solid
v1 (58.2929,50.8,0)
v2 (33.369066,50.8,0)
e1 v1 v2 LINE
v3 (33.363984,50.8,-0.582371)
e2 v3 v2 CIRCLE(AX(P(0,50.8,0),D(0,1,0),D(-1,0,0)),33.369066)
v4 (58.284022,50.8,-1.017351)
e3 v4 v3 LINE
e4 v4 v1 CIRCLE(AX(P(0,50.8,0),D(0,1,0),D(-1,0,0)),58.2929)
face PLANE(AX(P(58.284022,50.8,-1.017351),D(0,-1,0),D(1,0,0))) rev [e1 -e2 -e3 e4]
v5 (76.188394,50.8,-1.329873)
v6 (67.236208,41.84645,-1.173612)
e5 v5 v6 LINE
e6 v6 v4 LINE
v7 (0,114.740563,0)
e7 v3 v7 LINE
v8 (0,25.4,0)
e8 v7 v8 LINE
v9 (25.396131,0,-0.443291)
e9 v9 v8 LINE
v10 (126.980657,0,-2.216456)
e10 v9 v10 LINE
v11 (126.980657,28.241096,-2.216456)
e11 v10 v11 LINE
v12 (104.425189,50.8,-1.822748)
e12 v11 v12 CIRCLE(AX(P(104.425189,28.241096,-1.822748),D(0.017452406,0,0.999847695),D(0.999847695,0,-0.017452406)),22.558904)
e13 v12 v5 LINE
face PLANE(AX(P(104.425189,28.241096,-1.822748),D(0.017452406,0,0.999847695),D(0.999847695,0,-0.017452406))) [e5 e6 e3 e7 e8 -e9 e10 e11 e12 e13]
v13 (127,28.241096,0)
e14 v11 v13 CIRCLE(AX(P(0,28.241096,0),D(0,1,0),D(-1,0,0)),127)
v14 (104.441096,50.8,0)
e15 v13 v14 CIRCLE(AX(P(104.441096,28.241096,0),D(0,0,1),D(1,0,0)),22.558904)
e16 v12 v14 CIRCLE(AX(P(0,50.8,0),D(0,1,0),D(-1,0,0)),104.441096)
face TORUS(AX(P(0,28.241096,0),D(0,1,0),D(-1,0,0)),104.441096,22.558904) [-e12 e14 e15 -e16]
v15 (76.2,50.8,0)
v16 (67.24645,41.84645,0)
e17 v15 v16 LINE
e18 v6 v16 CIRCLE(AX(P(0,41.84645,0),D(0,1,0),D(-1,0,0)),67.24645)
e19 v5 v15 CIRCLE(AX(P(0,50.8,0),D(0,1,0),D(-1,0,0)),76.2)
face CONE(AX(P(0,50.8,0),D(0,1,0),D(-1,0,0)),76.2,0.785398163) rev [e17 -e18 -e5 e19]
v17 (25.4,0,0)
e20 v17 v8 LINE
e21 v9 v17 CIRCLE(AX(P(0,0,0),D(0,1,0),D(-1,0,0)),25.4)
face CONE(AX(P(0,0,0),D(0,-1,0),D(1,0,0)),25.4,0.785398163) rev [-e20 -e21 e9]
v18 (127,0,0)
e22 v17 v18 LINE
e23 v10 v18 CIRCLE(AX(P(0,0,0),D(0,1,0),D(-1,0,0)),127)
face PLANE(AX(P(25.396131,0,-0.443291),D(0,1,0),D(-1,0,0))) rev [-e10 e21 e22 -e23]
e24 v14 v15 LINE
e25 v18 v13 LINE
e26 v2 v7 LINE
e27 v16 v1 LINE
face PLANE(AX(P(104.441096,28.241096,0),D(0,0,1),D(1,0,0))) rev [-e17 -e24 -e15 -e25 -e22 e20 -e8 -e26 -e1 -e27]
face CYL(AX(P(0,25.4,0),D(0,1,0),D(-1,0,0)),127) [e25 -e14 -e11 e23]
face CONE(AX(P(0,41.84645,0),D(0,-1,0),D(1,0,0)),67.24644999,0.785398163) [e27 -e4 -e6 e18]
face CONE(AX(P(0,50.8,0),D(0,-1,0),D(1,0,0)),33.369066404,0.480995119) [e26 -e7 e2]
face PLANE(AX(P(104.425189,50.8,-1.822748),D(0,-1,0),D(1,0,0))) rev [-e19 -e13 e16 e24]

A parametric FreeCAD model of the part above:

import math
import FreeCAD as App
import Part
import Sketcher

V = App.Vector
Q = App.Units.Quantity

doc = App.newDocument("Part")
body = doc.addObject("PartDesign::Body", "Body")

# Sketch on XY plane
sketch1 = doc.addObject("Sketcher::SketchObject", "Sketch")
body.addObject(sketch1)
sketch1.AttachmentSupport = (doc.XY_Plane, [""])
sketch1.MapMode = "FlatFace"
sketch1.addGeometry([
    Part.LineSegment(V(0, 25.4, 0), V(25.4, 0, 0)),  # 0
    Part.LineSegment(V(25.4, 0, 0), V(127, 0, 0)),  # 1
    Part.LineSegment(V(127, 0, 0), V(127, 28.241096, 0)),  # 2
    Part.ArcOfCircle(Part.Circle(V(104.441096, 28.241096, 0), V(0, 0, 1), 22.558904), math.radians(0), math.radians(90)),  # 3
    Part.LineSegment(V(104.441096, 50.8, 0), V(76.2, 50.8, 0)),  # 4
    Part.LineSegment(V(76.2, 50.8, 0), V(67.24645, 41.84645, 0)),  # 5
    Part.LineSegment(V(67.24645, 41.84645, 0), V(58.2929, 50.8, 0)),  # 6
    Part.LineSegment(V(58.2929, 50.8, 0), V(33.369066, 50.8, 0)),  # 7
    Part.LineSegment(V(33.369066, 50.8, 0), V(0, 114.740563, 0)),  # 8
    Part.LineSegment(V(0, 114.740563, 0), V(0, 25.4, 0)),  # 9
], False)
sketch1.addConstraint([
    Sketcher.Constraint("Coincident", 0, 2, 1, 1),
    Sketcher.Constraint("Coincident", 1, 2, 2, 1),
    Sketcher.Constraint("Tangent", 2, 2, 3, 1),
    Sketcher.Constraint("Tangent", 3, 2, 4, 1),
    Sketcher.Constraint("Coincident", 4, 2, 5, 1),
    Sketcher.Constraint("Coincident", 5, 2, 6, 1),
    Sketcher.Constraint("Coincident", 6, 2, 7, 1),
    Sketcher.Constraint("Coincident", 7, 2, 8, 1),
    Sketcher.Constraint("Coincident", 8, 2, 9, 1),
    Sketcher.Constraint("Coincident", 9, 2, 0, 1),
    Sketcher.Constraint("Horizontal", 1),
    Sketcher.Constraint("Vertical", 2),
    Sketcher.Constraint("Horizontal", 4),
    Sketcher.Constraint("Horizontal", 7),
    Sketcher.Constraint("Vertical", 9),
    Sketcher.Constraint("PointOnObject", 0, 2, -1),
    Sketcher.Constraint("PointOnObject", 8, 2, -2),
    Sketcher.Constraint("Perpendicular", 0, 5),
    Sketcher.Constraint("Perpendicular", 5, 6),
    Sketcher.Constraint("Horizontal", 4, 2, 6, 2),
    Sketcher.Constraint("Equal", 4, 2),
    Sketcher.Constraint("Equal", 5, 6),
    Sketcher.Constraint("DistanceX", 1, 1, 1, 2, Q("4 in")),
    Sketcher.Constraint("DistanceX", -1, 1, 0, 2, Q("1 in")),
    Sketcher.Constraint("DistanceY", -1, 1, 3, 2, Q("2 in")),
    Sketcher.Constraint("Radius", 3, 22.558904),
    Sketcher.Constraint("DistanceX", -1, 1, 6, 2, 58.2929),
    Sketcher.Constraint("Distance", 8, 72.12413),
    Sketcher.Constraint("DistanceX", 7, 2, 7, 1, 24.923834),
])
revolution = doc.addObject("PartDesign::Revolution", "Revolution")
body.addObject(revolution)
revolution.Profile = sketch1
revolution.ReferenceAxis = (sketch1, ["V_Axis"])
revolution.Angle = 359
revolution.Reversed = True

doc.recompute()
